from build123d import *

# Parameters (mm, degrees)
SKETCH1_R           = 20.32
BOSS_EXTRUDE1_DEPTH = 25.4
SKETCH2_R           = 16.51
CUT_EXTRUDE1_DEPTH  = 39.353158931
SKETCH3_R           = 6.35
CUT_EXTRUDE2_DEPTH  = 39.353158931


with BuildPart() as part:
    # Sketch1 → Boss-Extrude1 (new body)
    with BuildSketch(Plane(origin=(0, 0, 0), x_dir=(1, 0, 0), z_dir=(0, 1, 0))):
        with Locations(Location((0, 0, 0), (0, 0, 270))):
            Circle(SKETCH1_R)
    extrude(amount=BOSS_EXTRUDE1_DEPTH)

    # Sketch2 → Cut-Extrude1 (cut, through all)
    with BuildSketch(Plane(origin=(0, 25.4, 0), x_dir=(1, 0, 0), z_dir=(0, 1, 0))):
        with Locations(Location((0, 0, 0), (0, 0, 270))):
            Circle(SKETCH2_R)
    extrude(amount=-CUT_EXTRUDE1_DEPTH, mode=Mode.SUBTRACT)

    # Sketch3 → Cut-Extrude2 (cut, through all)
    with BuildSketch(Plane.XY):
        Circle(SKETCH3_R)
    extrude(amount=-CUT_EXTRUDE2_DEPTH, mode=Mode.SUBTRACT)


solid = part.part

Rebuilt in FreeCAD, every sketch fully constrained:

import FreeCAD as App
import Part
import Sketcher
from FreeCAD import Vector
Q = App.Units.Quantity

doc = App.newDocument("Part")
body = doc.addObject("PartDesign::Body", "Body")

# Sketch on XZ plane
sketch1 = doc.addObject("Sketcher::SketchObject", "Sketch")
body.addObject(sketch1)
sketch1.AttachmentSupport = (doc.XZ_Plane, [""])
sketch1.MapMode = "FlatFace"
sketch1.addGeometry(Part.Circle(Vector(0, 0, 0), Vector(0, 0, 1), 20), False)
sketch1.addConstraint([
    Sketcher.Constraint("Coincident", 0, 3, -1, 1),
    Sketcher.Constraint("Diameter", 0, Q("1.6 in")),
])
pad1 = doc.addObject("PartDesign::Pad", "Pad")
body.addObject(pad1)
pad1.Profile = sketch1
pad1.Length = Q("1 in")
pad1.Reversed = True

# Sketch on XZ plane
sketch2 = doc.addObject("Sketcher::SketchObject", "Sketch001")
body.addObject(sketch2)
sketch2.AttachmentSupport = (doc.XZ_Plane, [""])
sketch2.MapMode = "FlatFace"
sketch2.AttachmentOffset = App.Placement(Vector(0, 0, -1 * 25.4), App.Rotation())
sketch2.addGeometry(Part.Circle(Vector(0, 0, 0), Vector(0, 0, 1), 17), False)
sketch2.addConstraint([
    Sketcher.Constraint("Coincident", 0, 3, -1, 1),
    Sketcher.Constraint("Diameter", 0, Q("1.3 in")),
])
pocket1 = doc.addObject("PartDesign::Pocket", "Pocket")
body.addObject(pocket1)
pocket1.Profile = sketch2
pocket1.Type = "ThroughAll"
pocket1.Reversed = True

# Sketch on XY plane
sketch3 = doc.addObject("Sketcher::SketchObject", "Sketch002")
body.addObject(sketch3)
sketch3.AttachmentSupport = (doc.XY_Plane, [""])
sketch3.MapMode = "FlatFace"
sketch3.addGeometry(Part.Circle(Vector(0, 0, 0), Vector(0, 0, 1), 6), False)
sketch3.addConstraint([
    Sketcher.Constraint("Coincident", 0, 3, -1, 1),
    Sketcher.Constraint("Diameter", 0, Q("0.5 in")),
])
pocket2 = doc.addObject("PartDesign::Pocket", "Pocket001")
body.addObject(pocket2)
pocket2.Profile = sketch3
pocket2.Type = "ThroughAll"

doc.recompute()
